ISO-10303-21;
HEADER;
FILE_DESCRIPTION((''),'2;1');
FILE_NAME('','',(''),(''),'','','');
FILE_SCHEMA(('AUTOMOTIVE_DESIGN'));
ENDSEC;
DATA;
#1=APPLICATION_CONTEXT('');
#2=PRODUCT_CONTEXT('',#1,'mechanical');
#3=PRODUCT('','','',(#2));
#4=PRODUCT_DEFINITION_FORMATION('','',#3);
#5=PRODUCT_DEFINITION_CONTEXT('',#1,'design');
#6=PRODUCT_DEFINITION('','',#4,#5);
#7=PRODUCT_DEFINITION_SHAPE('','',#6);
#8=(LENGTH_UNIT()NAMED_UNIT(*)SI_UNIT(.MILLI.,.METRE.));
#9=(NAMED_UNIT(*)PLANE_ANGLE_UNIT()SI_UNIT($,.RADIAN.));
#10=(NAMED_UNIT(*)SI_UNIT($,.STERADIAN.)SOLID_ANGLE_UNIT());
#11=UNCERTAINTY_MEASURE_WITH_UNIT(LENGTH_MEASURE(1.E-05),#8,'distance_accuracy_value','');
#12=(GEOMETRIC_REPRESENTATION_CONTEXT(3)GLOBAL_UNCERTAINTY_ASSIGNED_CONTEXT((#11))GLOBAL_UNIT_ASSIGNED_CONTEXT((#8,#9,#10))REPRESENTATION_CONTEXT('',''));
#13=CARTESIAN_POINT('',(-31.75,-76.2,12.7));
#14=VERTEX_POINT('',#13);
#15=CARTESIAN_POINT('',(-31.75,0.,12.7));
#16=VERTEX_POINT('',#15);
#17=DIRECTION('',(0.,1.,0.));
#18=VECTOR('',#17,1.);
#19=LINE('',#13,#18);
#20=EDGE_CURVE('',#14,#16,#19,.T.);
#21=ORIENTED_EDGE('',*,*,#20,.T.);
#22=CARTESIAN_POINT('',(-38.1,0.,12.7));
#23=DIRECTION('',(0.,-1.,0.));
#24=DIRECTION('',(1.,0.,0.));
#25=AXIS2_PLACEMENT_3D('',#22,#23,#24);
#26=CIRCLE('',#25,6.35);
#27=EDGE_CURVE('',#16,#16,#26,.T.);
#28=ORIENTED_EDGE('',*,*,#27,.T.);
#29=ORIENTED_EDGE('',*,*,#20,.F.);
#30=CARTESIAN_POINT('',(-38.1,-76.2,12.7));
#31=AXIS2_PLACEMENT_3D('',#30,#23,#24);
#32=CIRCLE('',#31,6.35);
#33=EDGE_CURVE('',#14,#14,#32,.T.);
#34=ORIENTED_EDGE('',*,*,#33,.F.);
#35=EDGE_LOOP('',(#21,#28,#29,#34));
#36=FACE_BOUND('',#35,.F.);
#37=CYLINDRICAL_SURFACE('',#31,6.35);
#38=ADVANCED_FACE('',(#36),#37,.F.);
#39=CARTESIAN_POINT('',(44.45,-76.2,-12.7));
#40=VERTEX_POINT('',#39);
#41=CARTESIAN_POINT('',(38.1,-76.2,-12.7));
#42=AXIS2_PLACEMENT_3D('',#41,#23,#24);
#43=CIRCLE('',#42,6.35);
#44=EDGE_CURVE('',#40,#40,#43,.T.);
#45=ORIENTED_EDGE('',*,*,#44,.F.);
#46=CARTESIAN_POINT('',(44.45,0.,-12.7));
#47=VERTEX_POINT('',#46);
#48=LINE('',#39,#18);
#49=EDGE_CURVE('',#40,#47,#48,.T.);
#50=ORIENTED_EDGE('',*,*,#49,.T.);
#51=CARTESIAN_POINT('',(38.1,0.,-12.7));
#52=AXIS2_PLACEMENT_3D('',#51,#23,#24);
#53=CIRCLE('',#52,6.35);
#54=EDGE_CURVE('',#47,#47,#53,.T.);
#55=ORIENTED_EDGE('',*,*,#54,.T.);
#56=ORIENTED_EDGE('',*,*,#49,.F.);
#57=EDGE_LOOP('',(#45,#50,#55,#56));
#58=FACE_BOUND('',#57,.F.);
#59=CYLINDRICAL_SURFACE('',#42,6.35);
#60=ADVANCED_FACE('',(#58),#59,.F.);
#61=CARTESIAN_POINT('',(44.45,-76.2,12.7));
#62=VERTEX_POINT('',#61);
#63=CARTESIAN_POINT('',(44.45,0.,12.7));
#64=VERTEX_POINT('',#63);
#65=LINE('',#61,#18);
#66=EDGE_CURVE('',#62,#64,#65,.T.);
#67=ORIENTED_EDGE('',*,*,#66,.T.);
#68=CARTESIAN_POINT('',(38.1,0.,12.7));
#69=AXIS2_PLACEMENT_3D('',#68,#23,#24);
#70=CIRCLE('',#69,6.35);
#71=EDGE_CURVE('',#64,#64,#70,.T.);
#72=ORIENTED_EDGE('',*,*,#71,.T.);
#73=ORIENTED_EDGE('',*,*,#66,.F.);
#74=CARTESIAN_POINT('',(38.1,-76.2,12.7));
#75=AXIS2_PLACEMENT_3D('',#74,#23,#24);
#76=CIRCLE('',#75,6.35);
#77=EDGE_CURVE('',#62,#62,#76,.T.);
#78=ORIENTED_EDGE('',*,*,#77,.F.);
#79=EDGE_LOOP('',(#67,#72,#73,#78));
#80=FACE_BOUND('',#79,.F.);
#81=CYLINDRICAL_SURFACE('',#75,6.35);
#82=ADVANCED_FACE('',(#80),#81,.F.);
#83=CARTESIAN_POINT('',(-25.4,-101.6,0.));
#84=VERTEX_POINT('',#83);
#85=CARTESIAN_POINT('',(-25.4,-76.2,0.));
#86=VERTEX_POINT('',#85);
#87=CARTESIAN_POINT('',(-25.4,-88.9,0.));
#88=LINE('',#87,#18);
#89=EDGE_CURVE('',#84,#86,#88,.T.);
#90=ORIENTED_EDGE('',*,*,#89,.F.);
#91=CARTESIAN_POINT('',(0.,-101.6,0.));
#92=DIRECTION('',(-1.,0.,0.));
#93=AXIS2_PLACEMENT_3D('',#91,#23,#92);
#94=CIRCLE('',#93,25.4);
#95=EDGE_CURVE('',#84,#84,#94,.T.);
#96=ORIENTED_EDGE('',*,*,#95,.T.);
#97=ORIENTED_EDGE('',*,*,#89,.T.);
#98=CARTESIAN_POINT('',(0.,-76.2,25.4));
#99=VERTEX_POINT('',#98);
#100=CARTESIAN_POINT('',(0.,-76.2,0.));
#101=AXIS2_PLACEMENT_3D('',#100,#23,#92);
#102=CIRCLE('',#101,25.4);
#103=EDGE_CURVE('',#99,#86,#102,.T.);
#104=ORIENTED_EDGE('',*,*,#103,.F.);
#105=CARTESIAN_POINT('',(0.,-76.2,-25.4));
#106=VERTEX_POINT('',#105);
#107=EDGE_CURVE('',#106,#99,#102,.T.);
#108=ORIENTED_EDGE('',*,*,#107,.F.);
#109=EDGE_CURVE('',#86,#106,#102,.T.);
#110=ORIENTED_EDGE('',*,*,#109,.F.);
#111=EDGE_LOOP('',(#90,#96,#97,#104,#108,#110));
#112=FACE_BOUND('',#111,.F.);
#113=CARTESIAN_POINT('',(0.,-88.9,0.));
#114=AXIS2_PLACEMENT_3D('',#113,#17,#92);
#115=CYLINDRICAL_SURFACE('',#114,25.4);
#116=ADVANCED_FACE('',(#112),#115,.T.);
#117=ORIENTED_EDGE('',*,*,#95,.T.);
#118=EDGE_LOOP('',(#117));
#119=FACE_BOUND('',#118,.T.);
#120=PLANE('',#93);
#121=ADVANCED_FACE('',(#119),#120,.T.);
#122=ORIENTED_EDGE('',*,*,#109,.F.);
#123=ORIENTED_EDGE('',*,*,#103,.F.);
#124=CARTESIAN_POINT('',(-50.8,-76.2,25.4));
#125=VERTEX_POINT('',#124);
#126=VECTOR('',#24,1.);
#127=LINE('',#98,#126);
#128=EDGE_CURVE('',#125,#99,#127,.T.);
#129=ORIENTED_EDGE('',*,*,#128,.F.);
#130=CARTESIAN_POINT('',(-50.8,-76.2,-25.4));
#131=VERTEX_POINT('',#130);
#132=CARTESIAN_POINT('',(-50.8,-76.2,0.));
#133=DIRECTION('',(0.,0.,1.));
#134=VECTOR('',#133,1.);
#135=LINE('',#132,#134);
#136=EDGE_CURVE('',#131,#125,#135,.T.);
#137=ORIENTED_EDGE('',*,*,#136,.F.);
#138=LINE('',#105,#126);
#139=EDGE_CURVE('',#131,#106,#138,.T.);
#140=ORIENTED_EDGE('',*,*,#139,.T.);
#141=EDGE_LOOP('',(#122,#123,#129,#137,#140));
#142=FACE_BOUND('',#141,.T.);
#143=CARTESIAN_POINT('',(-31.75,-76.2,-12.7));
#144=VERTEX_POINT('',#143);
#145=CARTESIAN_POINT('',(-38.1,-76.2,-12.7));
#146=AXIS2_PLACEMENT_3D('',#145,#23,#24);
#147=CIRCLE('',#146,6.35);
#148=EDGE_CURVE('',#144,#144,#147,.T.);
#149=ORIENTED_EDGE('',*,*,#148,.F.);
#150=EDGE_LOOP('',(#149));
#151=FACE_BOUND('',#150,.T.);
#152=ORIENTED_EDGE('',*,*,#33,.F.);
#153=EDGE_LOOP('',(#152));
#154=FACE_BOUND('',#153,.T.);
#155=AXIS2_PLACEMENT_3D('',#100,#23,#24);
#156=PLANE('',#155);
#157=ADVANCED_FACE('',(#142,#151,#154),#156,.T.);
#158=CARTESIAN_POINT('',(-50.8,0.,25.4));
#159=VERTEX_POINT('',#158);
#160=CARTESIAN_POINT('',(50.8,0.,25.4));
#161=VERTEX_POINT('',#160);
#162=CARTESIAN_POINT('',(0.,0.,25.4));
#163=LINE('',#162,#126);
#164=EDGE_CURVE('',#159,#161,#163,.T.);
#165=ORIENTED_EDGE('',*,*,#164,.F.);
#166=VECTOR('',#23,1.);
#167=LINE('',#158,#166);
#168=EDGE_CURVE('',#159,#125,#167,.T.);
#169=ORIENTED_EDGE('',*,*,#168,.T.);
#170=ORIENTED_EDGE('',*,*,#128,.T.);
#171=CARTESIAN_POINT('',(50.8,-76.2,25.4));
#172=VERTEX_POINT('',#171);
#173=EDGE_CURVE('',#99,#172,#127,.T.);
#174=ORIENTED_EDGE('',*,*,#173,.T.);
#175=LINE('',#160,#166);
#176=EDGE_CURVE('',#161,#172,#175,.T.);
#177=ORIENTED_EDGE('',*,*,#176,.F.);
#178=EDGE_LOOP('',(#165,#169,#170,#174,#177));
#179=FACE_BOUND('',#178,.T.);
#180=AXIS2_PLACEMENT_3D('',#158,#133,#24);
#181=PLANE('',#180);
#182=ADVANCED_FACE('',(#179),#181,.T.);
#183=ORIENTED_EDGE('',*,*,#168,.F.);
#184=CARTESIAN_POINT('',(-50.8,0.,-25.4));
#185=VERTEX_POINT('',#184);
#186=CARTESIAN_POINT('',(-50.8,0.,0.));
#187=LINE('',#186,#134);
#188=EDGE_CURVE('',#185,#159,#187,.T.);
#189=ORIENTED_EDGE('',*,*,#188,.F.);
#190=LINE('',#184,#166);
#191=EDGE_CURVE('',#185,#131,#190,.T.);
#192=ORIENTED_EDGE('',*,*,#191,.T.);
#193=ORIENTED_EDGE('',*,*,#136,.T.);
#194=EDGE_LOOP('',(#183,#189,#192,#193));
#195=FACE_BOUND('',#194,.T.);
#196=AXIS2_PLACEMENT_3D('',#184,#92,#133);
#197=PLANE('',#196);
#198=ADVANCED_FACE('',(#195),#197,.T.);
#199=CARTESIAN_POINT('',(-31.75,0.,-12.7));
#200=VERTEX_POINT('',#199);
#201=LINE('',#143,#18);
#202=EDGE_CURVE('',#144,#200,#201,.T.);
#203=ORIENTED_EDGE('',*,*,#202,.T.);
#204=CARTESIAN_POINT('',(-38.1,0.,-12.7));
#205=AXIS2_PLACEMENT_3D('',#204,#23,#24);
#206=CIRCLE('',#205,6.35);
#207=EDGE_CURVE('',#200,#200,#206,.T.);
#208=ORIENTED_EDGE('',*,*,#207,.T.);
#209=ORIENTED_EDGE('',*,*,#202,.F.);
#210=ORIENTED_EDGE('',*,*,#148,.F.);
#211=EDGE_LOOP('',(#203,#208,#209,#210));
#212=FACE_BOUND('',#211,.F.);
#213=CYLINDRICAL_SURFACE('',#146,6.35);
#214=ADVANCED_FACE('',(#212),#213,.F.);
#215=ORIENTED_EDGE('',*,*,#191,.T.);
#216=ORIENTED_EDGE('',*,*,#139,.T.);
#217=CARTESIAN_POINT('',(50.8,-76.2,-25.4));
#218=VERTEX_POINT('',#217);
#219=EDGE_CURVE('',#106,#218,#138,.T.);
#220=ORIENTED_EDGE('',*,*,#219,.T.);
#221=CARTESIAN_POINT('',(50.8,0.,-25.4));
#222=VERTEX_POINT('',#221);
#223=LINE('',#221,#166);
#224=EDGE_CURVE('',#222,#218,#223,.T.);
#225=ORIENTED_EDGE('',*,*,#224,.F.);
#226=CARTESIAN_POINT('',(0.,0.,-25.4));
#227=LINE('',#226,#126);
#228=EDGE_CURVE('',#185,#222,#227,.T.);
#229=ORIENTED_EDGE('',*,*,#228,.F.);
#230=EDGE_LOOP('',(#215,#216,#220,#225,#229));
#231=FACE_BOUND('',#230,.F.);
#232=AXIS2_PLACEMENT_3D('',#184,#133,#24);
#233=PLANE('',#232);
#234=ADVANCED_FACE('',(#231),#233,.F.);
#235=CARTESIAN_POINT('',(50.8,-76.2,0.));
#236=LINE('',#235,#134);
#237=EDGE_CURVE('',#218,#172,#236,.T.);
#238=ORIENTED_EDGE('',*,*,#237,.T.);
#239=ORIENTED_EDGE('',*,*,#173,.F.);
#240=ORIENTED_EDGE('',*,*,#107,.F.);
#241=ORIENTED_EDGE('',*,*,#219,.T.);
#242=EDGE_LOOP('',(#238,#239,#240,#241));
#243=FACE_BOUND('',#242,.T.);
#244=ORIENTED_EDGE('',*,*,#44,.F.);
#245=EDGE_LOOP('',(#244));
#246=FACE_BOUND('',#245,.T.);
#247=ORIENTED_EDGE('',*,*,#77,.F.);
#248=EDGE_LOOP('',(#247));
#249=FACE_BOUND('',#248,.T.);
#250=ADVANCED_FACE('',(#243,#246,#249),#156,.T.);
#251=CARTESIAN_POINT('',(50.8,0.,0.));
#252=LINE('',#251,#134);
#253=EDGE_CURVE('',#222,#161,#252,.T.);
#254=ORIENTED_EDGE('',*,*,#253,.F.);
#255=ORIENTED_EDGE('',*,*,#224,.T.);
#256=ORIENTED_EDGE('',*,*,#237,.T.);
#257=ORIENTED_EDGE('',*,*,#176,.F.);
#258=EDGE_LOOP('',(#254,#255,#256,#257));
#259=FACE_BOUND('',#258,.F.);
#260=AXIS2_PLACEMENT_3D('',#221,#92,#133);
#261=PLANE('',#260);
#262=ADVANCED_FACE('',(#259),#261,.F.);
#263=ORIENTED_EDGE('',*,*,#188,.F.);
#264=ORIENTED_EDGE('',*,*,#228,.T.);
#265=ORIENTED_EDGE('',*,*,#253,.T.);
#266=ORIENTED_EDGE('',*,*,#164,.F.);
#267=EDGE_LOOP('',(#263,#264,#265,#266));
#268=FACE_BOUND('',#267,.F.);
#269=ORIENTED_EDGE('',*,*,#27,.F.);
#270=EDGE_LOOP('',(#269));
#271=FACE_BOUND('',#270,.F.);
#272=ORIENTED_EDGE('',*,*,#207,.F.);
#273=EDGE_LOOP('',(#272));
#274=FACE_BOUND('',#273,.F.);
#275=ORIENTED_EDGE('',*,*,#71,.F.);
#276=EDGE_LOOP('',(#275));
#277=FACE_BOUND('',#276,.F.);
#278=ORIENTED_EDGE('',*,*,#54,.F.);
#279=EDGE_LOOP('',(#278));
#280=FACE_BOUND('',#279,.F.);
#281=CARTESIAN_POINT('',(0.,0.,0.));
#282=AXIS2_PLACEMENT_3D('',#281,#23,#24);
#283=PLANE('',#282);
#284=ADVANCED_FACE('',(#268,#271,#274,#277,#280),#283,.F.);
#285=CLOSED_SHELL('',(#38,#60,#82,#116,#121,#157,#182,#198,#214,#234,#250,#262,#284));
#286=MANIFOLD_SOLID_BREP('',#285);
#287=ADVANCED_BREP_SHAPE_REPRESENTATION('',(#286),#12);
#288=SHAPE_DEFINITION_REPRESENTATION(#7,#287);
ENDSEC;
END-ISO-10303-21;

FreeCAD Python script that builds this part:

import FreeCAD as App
import Part
import Sketcher
from FreeCAD import Vector
Q = App.Units.Quantity

doc = App.newDocument("Part")
params = doc.addObject("Spreadsheet::Sheet", "Params")
for row, (alias, value) in enumerate([
    ("sketch1_width", "4 in"),
    ("sketch1_height", "2 in"),
    ("pad1_length", "3 in"),
    ("sketch2_diameter", "0.5 in"),
    ("sketch3_width", "1 in"),
    ("revolution_angle", "360 deg"),
], start=1):
    params.set(f"A{row}", alias)
    params.set(f"B{row}", "=" + value)
    params.setAlias(f"B{row}", alias)

body = doc.addObject("PartDesign::Body", "Body")

# Sketch on XZ plane
sketch1 = body.newObject("Sketcher::SketchObject", "Sketch")
sketch1.AttachmentSupport = (doc.getObject("XZ_Plane"), [""])
sketch1.MapMode = "FlatFace"
sketch1.addGeometry([
    Part.LineSegment(Vector(-50.8, 25.4, 0), Vector(-50.8, -25.4, 0)),
    Part.LineSegment(Vector(-50.8, -25.4, 0), Vector(50.8, -25.4, 0)),
    Part.LineSegment(Vector(50.8, -25.4, 0), Vector(50.8, 25.4, 0)),
    Part.LineSegment(Vector(50.8, 25.4, 0), Vector(-50.8, 25.4, 0)),
], False)
sketch1.addConstraint([
    Sketcher.Constraint("Coincident", 0, 2, 1, 1),
    Sketcher.Constraint("Coincident", 1, 2, 2, 1),
    Sketcher.Constraint("Coincident", 2, 2, 3, 1),
    Sketcher.Constraint("Coincident", 3, 2, 0, 1),
    Sketcher.Constraint("Vertical", 0),
    Sketcher.Constraint("Horizontal", 1),
    Sketcher.Constraint("Vertical", 2),
    Sketcher.Constraint("Horizontal", 3),
    Sketcher.Constraint("Symmetric", 0, 2, 2, 2, -1, 1),
    Sketcher.Constraint("DistanceX", 1, 1, 1, 2, Q("4 in")),
    Sketcher.Constraint("DistanceY", 0, 2, 0, 1, Q("2 in")),
])
sketch1.setExpression("Constraints[9]", "Params.sketch1_width")
sketch1.setExpression("Constraints[10]", "Params.sketch1_height")
pad1 = body.newObject("PartDesign::Pad", "Pad")
pad1.Profile = sketch1
pad1.setExpression("Length", "Params.pad1_length")

# Sketch on XZ plane
sketch2 = body.newObject("Sketcher::SketchObject", "Sketch001")
sketch2.AttachmentSupport = (doc.getObject("XZ_Plane"), [""])
sketch2.MapMode = "FlatFace"
sketch2.AttachmentOffset = App.Placement(Vector(0, 0, 3 * 25.4), App.Rotation())
sketch2.addGeometry([
    Part.Circle(Vector(-38.1, 12.7, 0), Vector(0, 0, 1), 6.35),
    Part.Circle(Vector(-38.1, -12.7, 0), Vector(0, 0, 1), 6.35),
    Part.Circle(Vector(38.1, -12.7, 0), Vector(0, 0, 1), 6.35),
    Part.Circle(Vector(38.1, 12.7, 0), Vector(0, 0, 1), 6.35),
], False)
sketch2.addConstraint([
    Sketcher.Constraint("Equal", 0, 1),
    Sketcher.Constraint("Equal", 1, 2),
    Sketcher.Constraint("Equal", 2, 3),
    Sketcher.Constraint("Symmetric", 0, 3, 2, 3, -1, 1),
    Sketcher.Constraint("Symmetric", 1, 3, 3, 3, -1, 1),
    Sketcher.Constraint("Symmetric", 1, 3, 2, 3, -2),
    Sketcher.Constraint("Diameter", 0, Q("0.5 in")),
    Sketcher.Constraint("DistanceY", 1, 3, 0, 3, Q("1 in")),
    Sketcher.Constraint("DistanceX", 1, 3, 2, 3, Q("3 in")),
])
sketch2.setExpression("Constraints[6]", "Params.sketch2_diameter")
pocket1 = body.newObject("PartDesign::Pocket", "Pocket")
pocket1.Profile = sketch2
pocket1.Type = "ThroughAll"

# Sketch on XY plane
sketch3 = body.newObject("Sketcher::SketchObject", "Sketch002")
sketch3.AttachmentSupport = (doc.getObject("XY_Plane"), [""])
sketch3.MapMode = "FlatFace"
sketch3.addGeometry([
    Part.LineSegment(Vector(-25.4, -76.2, 0), Vector(-25.4, -101.6, 0)),
    Part.LineSegment(Vector(-25.4, -101.6, 0), Vector(0, -101.6, 0)),
    Part.LineSegment(Vector(0, -101.6, 0), Vector(0, -76.2, 0)),
    Part.LineSegment(Vector(0, -76.2, 0), Vector(-25.4, -76.2, 0)),
], False)
sketch3.addConstraint([
    Sketcher.Constraint("Coincident", 0, 2, 1, 1),
    Sketcher.Constraint("Coincident", 1, 2, 2, 1),
    Sketcher.Constraint("Coincident", 2, 2, 3, 1),
    Sketcher.Constraint("Coincident", 3, 2, 0, 1),
    Sketcher.Constraint("Vertical", 0),
    Sketcher.Constraint("Horizontal", 1),
    Sketcher.Constraint("Vertical", 2),
    Sketcher.Constraint("Horizontal", 3),
    Sketcher.Constraint("PointOnObject", 1, 2, -2),
    Sketcher.Constraint("Equal", 3, 0),
    Sketcher.Constraint("DistanceX", 1, 1, 1, 2, Q("1 in")),
    Sketcher.Constraint("DistanceY", 0, 2, -1, 1, Q("4 in")),
])
sketch3.setExpression("Constraints[10]", "Params.sketch3_width")
revolution = body.newObject("PartDesign::Revolution", "Revolution")
revolution.Profile = sketch3
revolution.ReferenceAxis = (sketch3, ["V_Axis"])
revolution.setExpression("Angle", "Params.revolution_angle")

doc.recompute()
